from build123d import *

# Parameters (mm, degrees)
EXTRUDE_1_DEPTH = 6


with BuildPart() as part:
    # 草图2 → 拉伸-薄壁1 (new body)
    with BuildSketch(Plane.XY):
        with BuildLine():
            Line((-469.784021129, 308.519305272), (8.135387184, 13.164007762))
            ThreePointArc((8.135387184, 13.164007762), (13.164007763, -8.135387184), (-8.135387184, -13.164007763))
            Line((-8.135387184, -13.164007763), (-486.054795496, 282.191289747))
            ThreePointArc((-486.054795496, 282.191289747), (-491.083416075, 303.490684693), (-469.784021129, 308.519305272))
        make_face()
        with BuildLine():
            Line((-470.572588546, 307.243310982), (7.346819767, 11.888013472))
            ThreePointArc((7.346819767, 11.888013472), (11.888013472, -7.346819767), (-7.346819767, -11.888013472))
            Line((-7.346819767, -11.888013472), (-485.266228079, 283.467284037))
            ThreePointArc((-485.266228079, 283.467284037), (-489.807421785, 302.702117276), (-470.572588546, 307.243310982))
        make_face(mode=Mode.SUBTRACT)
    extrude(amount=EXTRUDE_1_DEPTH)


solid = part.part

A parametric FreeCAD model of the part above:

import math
import FreeCAD as App
import Part
import Sketcher
Q = App.Units.Quantity

doc = App.newDocument("Part")
body = doc.addObject("PartDesign::Body", "Body")

# Sketch on XY plane
sketch1 = doc.addObject("Sketcher::SketchObject", "Sketch")
body.addObject(sketch1)
sketch1.AttachmentSupport = (doc.XY_Plane, [""])
sketch1.MapMode = "FlatFace"
sketch1.addGeometry([
    Part.LineSegment(App.Vector(8, 13, 0), App.Vector(-470, 309, 0)),  # 0
    Part.ArcOfCircle(Part.Circle(App.Vector(-478, 295, 0), App.Vector(0, 0, 1), 15), math.radians(58), math.radians(238)),  # 1
    Part.LineSegment(App.Vector(-486, 282, 0), App.Vector(-8, -13, 0)),  # 2
    Part.ArcOfCircle(Part.Circle(App.Vector(0, 0, 0), App.Vector(0, 0, 1), 15), math.radians(-122), math.radians(58)),  # 3
    Part.LineSegment(App.Vector(-471, 307, 0), App.Vector(7, 12, 0)),  # 4
    Part.ArcOfCircle(Part.Circle(App.Vector(0, 0, 0), App.Vector(0, 0, 1), 14), math.radians(-122), math.radians(58)),  # 5
    Part.LineSegment(App.Vector(-7, -12, 0), App.Vector(-485, 283, 0)),  # 6
    Part.ArcOfCircle(Part.Circle(App.Vector(-478, 295, 0), App.Vector(0, 0, 1), 14), math.radians(58), math.radians(238)),  # 7
], False)
sketch1.addConstraint([
    Sketcher.Constraint("Tangent", 0, 2, 1, 1),
    Sketcher.Constraint("Tangent", 1, 2, 2, 1),
    Sketcher.Constraint("Tangent", 2, 2, 3, 1),
    Sketcher.Constraint("Tangent", 3, 2, 0, 1),
    Sketcher.Constraint("Tangent", 4, 2, 5, 2),
    Sketcher.Constraint("Tangent", 5, 1, 6, 1),
    Sketcher.Constraint("Tangent", 6, 2, 7, 2),
    Sketcher.Constraint("Tangent", 7, 1, 4, 1),
    Sketcher.Constraint("Coincident", 3, 3, -1, 1),
    Sketcher.Constraint("Coincident", 5, 3, -1, 1),
    Sketcher.Constraint("Coincident", 7, 3, 1, 3),
    Sketcher.Constraint("Equal", 1, 3),
    Sketcher.Constraint("Equal", 5, 7),
    Sketcher.Constraint("Radius", 1, Q("15.475 mm")),
    Sketcher.Constraint("Radius", 5, Q("13.975 mm")),
    Sketcher.Constraint("Distance", 0, Q("561.82 mm")),
    Sketcher.Constraint("DistanceX", 1, 3, -1, 1, Q("477.919408 mm")),
])
pad1 = doc.addObject("PartDesign::Pad", "Pad")
body.addObject(pad1)
pad1.Profile = sketch1
pad1.Length = 6

doc.recompute()
